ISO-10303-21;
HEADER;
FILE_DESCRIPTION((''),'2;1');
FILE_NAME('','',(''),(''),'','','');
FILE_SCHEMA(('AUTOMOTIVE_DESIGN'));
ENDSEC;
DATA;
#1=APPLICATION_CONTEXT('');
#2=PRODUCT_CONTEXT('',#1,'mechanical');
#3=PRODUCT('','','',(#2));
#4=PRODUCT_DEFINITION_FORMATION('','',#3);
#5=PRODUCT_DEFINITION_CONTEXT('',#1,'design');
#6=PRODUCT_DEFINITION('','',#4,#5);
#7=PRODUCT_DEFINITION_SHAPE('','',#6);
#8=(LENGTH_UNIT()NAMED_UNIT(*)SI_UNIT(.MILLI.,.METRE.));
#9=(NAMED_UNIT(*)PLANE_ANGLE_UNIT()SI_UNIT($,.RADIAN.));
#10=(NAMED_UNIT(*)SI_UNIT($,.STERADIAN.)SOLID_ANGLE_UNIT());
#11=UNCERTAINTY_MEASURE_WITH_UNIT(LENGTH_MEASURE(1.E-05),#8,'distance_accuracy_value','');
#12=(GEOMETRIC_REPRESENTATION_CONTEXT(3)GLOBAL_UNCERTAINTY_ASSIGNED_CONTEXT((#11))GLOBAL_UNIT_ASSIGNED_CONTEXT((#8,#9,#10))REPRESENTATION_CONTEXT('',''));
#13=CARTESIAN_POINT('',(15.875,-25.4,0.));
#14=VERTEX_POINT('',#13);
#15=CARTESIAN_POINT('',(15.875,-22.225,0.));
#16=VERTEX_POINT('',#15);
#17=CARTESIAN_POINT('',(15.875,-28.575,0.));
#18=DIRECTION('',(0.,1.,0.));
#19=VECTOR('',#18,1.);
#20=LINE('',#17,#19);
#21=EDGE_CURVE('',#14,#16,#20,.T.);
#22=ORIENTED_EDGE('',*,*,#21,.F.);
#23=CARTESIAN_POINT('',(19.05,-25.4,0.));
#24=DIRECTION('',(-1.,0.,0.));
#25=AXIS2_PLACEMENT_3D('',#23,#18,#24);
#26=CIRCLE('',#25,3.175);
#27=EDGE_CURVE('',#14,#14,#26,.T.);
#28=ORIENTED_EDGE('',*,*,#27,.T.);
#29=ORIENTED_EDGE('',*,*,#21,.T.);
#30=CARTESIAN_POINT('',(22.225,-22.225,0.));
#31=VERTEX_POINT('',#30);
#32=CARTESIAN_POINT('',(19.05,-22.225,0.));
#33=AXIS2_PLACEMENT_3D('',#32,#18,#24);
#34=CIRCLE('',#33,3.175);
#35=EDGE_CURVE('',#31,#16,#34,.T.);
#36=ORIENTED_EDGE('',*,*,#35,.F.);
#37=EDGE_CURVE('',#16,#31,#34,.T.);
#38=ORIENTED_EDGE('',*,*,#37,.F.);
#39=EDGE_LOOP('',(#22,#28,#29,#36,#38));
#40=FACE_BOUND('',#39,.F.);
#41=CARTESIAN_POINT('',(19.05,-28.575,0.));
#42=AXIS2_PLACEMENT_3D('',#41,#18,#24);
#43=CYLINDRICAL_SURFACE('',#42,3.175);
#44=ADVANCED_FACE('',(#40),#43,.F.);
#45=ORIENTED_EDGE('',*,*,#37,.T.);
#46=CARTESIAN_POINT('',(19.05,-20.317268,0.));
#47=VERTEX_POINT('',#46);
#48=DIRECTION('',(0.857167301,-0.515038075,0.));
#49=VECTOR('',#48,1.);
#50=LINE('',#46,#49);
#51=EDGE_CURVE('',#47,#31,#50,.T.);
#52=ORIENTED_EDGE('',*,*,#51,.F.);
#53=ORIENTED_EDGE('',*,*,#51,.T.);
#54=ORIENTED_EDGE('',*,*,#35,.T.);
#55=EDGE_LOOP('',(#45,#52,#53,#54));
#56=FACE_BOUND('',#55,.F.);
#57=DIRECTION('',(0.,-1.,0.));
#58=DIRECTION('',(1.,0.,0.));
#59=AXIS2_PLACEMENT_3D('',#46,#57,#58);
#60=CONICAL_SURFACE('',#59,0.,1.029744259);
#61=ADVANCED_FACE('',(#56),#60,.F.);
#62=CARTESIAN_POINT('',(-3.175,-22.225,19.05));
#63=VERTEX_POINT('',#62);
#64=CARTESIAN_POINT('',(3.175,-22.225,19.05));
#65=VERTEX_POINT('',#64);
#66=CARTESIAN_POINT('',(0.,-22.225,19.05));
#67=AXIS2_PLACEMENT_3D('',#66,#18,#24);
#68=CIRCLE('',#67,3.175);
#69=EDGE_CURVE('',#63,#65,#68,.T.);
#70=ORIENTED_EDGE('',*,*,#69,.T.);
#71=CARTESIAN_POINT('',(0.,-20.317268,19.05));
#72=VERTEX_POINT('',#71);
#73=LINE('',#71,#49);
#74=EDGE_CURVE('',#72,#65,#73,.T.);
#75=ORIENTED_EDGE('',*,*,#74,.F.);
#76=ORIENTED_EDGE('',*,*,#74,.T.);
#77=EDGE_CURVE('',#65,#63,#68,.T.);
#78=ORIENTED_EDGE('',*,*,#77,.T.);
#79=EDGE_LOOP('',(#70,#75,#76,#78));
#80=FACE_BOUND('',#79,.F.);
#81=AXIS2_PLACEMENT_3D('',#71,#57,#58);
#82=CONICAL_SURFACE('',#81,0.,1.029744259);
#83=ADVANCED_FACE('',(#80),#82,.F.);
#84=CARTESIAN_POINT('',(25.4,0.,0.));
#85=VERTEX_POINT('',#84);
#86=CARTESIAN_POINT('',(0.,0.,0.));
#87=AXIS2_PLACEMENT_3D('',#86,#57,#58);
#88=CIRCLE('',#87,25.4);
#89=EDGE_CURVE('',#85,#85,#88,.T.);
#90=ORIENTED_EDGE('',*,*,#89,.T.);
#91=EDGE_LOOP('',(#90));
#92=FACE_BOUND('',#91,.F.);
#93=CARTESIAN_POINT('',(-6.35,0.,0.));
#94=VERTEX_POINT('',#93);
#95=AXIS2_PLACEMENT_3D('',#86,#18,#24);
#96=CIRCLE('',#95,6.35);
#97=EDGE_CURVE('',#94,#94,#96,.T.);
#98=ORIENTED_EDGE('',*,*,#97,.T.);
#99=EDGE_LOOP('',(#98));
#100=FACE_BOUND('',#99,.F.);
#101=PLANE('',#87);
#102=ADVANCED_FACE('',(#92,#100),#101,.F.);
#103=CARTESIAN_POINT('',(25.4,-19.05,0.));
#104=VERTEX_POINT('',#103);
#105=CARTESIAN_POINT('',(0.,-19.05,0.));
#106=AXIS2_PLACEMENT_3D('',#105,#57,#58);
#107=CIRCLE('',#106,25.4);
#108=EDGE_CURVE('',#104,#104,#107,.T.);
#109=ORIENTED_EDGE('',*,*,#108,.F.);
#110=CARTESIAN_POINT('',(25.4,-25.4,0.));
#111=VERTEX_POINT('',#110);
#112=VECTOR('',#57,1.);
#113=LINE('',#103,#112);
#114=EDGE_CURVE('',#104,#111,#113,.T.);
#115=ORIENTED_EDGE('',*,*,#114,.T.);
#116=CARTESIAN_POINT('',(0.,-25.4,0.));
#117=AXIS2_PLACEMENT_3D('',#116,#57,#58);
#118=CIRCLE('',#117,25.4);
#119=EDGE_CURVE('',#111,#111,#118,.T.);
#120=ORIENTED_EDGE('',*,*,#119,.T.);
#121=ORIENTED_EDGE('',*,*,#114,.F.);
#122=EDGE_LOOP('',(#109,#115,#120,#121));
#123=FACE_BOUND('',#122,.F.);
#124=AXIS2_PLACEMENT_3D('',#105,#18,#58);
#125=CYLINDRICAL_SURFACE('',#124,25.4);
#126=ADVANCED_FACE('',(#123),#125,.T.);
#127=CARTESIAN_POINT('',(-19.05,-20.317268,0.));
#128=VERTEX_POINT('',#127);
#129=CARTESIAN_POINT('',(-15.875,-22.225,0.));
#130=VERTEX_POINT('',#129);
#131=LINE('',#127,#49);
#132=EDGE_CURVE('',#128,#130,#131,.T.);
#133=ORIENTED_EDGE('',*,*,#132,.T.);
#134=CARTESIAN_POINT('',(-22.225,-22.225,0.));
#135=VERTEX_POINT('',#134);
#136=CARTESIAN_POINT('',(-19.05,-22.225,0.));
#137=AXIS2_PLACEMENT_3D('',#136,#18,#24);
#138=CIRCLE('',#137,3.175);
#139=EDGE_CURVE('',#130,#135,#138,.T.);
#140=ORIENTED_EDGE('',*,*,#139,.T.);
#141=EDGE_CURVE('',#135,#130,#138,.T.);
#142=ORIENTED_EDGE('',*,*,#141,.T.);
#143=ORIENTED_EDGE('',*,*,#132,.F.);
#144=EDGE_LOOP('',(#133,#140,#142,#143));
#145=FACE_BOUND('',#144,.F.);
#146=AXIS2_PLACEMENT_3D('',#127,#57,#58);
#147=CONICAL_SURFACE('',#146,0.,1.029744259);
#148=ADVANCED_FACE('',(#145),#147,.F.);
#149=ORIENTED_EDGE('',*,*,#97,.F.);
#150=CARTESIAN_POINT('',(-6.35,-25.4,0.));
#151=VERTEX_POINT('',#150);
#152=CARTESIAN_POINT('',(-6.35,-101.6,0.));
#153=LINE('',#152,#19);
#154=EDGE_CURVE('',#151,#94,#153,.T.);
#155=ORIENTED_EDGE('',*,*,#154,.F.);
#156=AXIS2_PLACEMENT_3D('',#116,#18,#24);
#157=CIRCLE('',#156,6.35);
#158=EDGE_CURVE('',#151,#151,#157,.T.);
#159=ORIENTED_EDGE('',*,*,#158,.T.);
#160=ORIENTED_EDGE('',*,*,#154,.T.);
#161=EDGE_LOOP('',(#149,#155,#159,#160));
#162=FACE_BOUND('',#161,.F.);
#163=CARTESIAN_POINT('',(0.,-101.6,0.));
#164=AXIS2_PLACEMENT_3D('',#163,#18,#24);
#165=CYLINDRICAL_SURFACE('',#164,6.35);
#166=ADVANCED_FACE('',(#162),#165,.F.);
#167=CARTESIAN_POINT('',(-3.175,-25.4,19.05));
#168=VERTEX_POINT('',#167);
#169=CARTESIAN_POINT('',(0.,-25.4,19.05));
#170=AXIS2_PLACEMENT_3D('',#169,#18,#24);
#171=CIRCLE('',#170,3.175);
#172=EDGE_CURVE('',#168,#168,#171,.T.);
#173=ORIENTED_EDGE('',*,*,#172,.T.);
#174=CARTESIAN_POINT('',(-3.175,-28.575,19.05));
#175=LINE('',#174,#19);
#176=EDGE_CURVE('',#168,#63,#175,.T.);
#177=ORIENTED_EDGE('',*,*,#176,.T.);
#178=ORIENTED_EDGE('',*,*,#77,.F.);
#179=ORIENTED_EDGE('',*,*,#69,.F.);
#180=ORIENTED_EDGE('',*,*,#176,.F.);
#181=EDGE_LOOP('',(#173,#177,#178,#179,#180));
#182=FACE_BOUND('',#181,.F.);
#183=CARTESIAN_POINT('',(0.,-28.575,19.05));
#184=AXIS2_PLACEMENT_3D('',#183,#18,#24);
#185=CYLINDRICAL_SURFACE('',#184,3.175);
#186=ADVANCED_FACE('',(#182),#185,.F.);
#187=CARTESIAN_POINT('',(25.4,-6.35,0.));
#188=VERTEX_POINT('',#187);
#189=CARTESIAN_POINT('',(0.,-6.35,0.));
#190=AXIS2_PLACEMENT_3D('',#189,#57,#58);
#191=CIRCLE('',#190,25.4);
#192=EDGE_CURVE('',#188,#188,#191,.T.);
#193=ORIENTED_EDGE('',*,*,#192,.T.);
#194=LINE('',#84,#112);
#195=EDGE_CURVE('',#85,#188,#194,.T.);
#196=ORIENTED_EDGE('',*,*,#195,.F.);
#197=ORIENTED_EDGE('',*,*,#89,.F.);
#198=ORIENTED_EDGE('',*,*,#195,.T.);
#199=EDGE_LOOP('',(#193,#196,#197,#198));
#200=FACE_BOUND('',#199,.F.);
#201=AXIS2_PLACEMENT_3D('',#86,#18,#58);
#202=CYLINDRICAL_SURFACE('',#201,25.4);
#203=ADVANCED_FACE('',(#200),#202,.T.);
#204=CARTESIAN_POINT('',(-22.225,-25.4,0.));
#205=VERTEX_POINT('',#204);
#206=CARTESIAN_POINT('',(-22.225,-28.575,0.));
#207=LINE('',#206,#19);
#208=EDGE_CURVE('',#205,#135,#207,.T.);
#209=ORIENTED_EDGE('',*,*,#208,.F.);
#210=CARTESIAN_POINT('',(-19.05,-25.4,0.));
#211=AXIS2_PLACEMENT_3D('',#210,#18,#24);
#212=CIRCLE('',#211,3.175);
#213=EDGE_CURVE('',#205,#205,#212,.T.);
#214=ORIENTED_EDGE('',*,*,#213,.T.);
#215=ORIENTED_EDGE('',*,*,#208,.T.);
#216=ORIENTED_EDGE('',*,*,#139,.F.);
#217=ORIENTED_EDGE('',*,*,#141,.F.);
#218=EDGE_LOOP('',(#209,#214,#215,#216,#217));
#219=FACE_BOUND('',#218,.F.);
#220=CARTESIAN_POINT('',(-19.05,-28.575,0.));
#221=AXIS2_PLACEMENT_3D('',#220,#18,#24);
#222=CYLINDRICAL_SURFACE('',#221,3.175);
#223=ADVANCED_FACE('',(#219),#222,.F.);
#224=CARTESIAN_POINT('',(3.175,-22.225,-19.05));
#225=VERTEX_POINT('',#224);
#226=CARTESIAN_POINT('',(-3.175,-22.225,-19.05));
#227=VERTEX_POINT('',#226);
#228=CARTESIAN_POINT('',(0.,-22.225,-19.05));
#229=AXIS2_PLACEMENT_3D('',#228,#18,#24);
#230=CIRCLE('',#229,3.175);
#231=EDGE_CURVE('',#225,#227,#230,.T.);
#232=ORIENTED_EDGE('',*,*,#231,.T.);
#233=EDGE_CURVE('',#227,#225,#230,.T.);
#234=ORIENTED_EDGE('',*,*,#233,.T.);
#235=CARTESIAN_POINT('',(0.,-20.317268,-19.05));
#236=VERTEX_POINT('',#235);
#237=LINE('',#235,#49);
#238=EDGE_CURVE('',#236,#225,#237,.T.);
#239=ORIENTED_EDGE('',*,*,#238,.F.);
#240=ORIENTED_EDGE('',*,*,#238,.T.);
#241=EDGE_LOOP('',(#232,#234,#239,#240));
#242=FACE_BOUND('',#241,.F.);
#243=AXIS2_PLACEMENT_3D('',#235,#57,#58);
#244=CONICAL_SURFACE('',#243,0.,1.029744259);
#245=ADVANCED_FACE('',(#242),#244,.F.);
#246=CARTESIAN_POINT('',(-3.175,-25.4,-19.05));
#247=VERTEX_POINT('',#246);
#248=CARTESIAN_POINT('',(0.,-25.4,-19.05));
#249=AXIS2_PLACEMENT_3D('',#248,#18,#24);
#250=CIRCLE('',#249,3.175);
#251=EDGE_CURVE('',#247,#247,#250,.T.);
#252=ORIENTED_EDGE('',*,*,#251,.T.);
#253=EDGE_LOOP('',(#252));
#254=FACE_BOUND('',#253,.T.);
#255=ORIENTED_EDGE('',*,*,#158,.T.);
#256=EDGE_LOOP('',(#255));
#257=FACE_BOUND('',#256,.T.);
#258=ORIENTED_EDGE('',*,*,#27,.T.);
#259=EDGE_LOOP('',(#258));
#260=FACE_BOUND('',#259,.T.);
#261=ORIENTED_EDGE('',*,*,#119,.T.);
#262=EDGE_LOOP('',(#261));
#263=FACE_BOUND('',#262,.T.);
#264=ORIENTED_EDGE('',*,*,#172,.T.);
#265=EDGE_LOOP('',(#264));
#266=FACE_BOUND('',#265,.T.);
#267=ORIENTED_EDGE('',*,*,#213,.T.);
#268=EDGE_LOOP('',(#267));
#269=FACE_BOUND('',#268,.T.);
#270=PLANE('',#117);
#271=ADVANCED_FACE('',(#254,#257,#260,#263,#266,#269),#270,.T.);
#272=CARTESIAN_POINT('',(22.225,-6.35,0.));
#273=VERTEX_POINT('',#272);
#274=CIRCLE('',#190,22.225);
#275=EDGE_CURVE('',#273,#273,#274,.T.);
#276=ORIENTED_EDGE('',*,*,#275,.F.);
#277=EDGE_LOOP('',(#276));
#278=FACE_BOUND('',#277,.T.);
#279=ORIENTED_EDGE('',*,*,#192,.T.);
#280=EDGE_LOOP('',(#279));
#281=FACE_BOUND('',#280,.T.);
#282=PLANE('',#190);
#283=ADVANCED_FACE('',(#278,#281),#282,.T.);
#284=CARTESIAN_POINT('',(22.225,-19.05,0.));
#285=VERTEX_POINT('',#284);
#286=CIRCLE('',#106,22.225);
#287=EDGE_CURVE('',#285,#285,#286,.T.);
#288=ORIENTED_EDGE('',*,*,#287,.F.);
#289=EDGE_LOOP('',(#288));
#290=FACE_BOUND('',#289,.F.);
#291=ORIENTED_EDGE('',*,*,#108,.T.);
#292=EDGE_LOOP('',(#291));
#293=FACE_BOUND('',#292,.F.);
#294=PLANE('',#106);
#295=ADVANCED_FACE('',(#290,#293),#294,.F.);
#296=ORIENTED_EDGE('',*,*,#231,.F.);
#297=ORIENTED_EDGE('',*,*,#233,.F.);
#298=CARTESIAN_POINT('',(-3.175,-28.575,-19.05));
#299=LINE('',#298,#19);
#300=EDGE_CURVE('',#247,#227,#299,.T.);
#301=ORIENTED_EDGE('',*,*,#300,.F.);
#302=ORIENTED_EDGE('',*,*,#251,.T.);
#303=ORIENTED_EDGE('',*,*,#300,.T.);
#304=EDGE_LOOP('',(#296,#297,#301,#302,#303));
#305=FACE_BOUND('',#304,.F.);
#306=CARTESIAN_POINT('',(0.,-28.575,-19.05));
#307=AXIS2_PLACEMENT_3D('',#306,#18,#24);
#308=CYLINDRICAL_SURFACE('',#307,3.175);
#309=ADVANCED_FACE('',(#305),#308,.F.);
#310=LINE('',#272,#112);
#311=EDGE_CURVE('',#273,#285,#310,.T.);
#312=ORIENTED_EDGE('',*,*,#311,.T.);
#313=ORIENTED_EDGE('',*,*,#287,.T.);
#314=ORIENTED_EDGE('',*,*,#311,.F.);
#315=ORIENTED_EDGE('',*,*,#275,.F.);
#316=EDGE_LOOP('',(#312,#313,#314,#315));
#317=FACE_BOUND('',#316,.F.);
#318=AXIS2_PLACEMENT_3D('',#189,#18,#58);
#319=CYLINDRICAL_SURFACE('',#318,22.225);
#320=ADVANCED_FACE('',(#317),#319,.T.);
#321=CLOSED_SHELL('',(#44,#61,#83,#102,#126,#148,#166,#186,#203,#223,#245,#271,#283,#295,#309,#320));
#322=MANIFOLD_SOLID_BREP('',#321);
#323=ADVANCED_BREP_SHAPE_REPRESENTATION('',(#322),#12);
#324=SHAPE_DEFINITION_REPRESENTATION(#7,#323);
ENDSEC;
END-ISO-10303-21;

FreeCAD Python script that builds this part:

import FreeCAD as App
import Part
import Sketcher
Q = App.Units.Quantity

doc = App.newDocument("Part")
body = doc.addObject("PartDesign::Body", "Body")

sketch1 = body.newObject("Sketcher::SketchObject", "Sketch")
sketch1.AttachmentSupport = (doc.getObject("XZ_Plane"), [""])
sketch1.MapMode = "FlatFace"
sketch1.addGeometry(Part.Circle(App.Vector(0, 0, 0), App.Vector(0, 0, 1), 25.4), False)
sketch1.addConstraint(Sketcher.Constraint("Coincident", 0, 3, -1, 1))
sketch1.addConstraint(Sketcher.Constraint("Diameter", 0, Q("2 in")))
pad1 = body.newObject("PartDesign::Pad", "Pad")
pad1.Profile = sketch1
pad1.Length = Q("0.25 in")

sketch2 = body.newObject("Sketcher::SketchObject", "Sketch001")
sketch2.AttachmentSupport = (doc.getObject("XZ_Plane"), [""])
sketch2.MapMode = "FlatFace"
sketch2.AttachmentOffset = App.Placement(App.Vector(0, 0, 0.25 * 25.4), App.Rotation())
sketch2.addGeometry(Part.Circle(App.Vector(0, 0, 0), App.Vector(0, 0, 1), 22.225), False)
sketch2.addConstraint(Sketcher.Constraint("Coincident", 0, 3, -1, 1))
sketch2.addConstraint(Sketcher.Constraint("Diameter", 0, Q("1.75 in")))
pad2 = body.newObject("PartDesign::Pad", "Pad001")
pad2.Profile = sketch2
pad2.Length = Q("0.5 in")

sketch3 = body.newObject("Sketcher::SketchObject", "Sketch002")
sketch3.AttachmentSupport = (doc.getObject("XZ_Plane"), [""])
sketch3.MapMode = "FlatFace"
sketch3.AttachmentOffset = App.Placement(App.Vector(0, 0, 0.75 * 25.4), App.Rotation())
sketch3.addGeometry(Part.Circle(App.Vector(0, 0, 0), App.Vector(0, 0, 1), 25.4), False)
sketch3.addConstraint(Sketcher.Constraint("Coincident", 0, 3, -1, 1))
sketch3.addConstraint(Sketcher.Constraint("Diameter", 0, Q("2 in")))
pad3 = body.newObject("PartDesign::Pad", "Pad002")
pad3.Profile = sketch3
pad3.Length = Q("0.25 in")

sketch4 = body.newObject("Sketcher::SketchObject", "Sketch003")
sketch4.AttachmentSupport = (doc.getObject("XZ_Plane"), [""])
sketch4.MapMode = "FlatFace"
sketch4.AttachmentOffset = App.Placement(App.Vector(0, 0, 1 * 25.4), App.Rotation())
sketch4.addGeometry(Part.Circle(App.Vector(-19.05, 0, 0), App.Vector(0, 0, 1), 3.175), False)
sketch4.addGeometry(Part.Circle(App.Vector(0, -19.05, 0), App.Vector(0, 0, 1), 3.175), False)
sketch4.addGeometry(Part.Circle(App.Vector(19.05, 0, 0), App.Vector(0, 0, 1), 3.175), False)
sketch4.addGeometry(Part.Circle(App.Vector(0, 19.05, 0), App.Vector(0, 0, 1), 3.175), False)
sketch4.addConstraint(Sketcher.Constraint("Equal", 0, 1))
sketch4.addConstraint(Sketcher.Constraint("Equal", 1, 2))
sketch4.addConstraint(Sketcher.Constraint("Equal", 2, 3))
sketch4.addConstraint(Sketcher.Constraint("Symmetric", 0, 3, 2, 3, -1, 1))
sketch4.addConstraint(Sketcher.Constraint("Symmetric", 1, 3, 3, 3, -1, 1))
sketch4.addConstraint(Sketcher.Constraint("PointOnObject", 0, 3, -1))
sketch4.addConstraint(Sketcher.Constraint("PointOnObject", 1, 3, -2))
sketch4.addConstraint(Sketcher.Constraint("Diameter", 0, Q("0.25 in")))
sketch4.addConstraint(Sketcher.Constraint("DistanceX", 0, 3, 2, 3, Q("1.5 in")))
sketch4.addConstraint(Sketcher.Constraint("DistanceY", 1, 3, 3, 3, Q("1.5 in")))
doc.recompute()
hole = body.newObject("PartDesign::Hole", "Hole")
hole.Profile = sketch4
hole.ThreadType = "None"
hole.Diameter = Q("0.25 in")
hole.DepthType = "Dimension"
hole.Depth = Q("0.125 in")
hole.DrillPoint = "Angled"
hole.DrillPointAngle = 118

sketch5 = body.newObject("Sketcher::SketchObject", "Sketch004")
sketch5.AttachmentSupport = (doc.getObject("XZ_Plane"), [""])
sketch5.MapMode = "FlatFace"
sketch5.AttachmentOffset = App.Placement(App.Vector(0, 0, 1 * 25.4), App.Rotation())
sketch5.addGeometry(Part.Circle(App.Vector(0, 0, 0), App.Vector(0, 0, 1), 6.35), False)
sketch5.addConstraint(Sketcher.Constraint("Coincident", 0, 3, -1, 1))
sketch5.addConstraint(Sketcher.Constraint("Diameter", 0, Q("0.5 in")))
doc.recompute()
hole2 = body.newObject("PartDesign::Hole", "Hole001")
hole2.Profile = sketch5
hole2.ThreadType = "None"
hole2.Diameter = Q("0.5 in")
hole2.DepthType = "ThroughAll"

doc.recompute()
